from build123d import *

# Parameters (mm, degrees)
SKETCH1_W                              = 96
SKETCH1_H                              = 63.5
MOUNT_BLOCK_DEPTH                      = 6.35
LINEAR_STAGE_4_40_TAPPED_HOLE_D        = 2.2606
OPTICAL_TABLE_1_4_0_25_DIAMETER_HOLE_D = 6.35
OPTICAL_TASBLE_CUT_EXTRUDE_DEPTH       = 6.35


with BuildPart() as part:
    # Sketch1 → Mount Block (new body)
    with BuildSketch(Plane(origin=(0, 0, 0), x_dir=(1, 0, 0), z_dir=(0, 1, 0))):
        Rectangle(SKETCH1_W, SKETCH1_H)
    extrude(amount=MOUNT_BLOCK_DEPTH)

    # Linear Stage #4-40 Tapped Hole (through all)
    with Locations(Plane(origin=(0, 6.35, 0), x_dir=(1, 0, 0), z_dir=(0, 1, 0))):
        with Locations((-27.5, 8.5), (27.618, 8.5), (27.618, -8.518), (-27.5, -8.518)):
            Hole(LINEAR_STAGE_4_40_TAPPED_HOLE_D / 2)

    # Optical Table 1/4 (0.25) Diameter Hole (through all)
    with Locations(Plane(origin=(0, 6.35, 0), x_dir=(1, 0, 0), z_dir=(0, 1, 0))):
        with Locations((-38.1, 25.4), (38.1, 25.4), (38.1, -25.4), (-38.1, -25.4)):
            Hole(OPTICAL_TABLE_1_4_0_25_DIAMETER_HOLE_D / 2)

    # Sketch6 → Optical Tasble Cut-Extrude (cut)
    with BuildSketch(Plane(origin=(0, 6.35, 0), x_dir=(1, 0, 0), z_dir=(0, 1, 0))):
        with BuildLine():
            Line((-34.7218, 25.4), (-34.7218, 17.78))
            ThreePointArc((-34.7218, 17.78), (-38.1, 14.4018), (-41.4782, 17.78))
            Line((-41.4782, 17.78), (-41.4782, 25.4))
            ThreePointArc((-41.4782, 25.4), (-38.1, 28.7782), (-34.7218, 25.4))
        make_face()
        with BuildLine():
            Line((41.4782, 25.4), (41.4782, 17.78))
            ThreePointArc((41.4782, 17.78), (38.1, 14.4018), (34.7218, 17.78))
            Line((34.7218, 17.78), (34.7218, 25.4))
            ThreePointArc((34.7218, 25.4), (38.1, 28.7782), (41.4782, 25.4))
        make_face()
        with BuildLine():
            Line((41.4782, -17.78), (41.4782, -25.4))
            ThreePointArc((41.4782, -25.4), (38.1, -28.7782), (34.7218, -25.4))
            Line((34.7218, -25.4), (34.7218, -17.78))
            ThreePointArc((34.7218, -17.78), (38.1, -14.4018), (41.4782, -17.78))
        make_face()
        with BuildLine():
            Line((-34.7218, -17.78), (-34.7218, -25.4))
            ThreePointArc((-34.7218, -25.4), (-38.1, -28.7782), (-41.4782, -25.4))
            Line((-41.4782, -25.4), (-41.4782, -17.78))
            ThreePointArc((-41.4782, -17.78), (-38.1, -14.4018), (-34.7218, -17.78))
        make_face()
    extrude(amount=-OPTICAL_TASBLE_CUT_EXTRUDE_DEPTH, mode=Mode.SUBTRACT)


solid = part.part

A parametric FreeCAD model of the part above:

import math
import FreeCAD as App
import Part
import Sketcher
from FreeCAD import Vector
Q = App.Units.Quantity


def add_polygon(sketch, points):
    """Adds a closed chain of lines whose ends are joined by coincident constraints."""
    first, n = sketch.GeometryCount, len(points)
    for a, b in zip(points, points[1:] + points[:1]):
        sketch.addGeometry(Part.LineSegment(App.Vector(*a, 0), App.Vector(*b, 0)), False)
    for i in range(n):
        sketch.addConstraint(Sketcher.Constraint("Coincident", first + i, 2, first + (i + 1) % n, 1))

doc = App.newDocument("Part")
body = doc.addObject("PartDesign::Body", "Body")

sketch1 = doc.addObject("Sketcher::SketchObject", "Sketch")
body.addObject(sketch1)
sketch1.AttachmentSupport = (doc.XZ_Plane, [""])
sketch1.MapMode = "FlatFace"
add_polygon(sketch1, [(-48, -31.75), (-48, 31.75), (48, 31.75), (48, -31.75)])
sketch1.addConstraint([
    Sketcher.Constraint("Vertical", 0),
    Sketcher.Constraint("Horizontal", 1),
    Sketcher.Constraint("Vertical", 2),
    Sketcher.Constraint("Horizontal", 3),
    Sketcher.Constraint("Symmetric", 0, 2, 2, 2, -1, 1),
    Sketcher.Constraint("DistanceY", 0, 1, 0, 2, Q("2.5 in")),
    Sketcher.Constraint("DistanceX", 1, 1, 1, 2, Q("96 mm")),
])
pad1 = doc.addObject("PartDesign::Pad", "Pad")
body.addObject(pad1)
pad1.Profile = sketch1
pad1.Length = Q("0.25 in")
pad1.Reversed = True

sketch2 = doc.addObject("Sketcher::SketchObject", "Sketch001")
body.addObject(sketch2)
sketch2.AttachmentSupport = (doc.XZ_Plane, [""])
sketch2.MapMode = "FlatFace"
sketch2.AttachmentOffset = App.Placement(Vector(0, 0, -0.25 * 25.4), App.Rotation())
sketch2.addGeometry([
    Part.Circle(Vector(-27.5, -8.5, 0), Vector(0, 0, 1), 1.1303),
    Part.Circle(Vector(27.618, -8.5, 0), Vector(0, 0, 1), 1.1303),
    Part.Circle(Vector(27.618, 8.518, 0), Vector(0, 0, 1), 1.1303),
    Part.Circle(Vector(-27.5, 8.518, 0), Vector(0, 0, 1), 1.1303),
], False)
sketch2.addConstraint([
    Sketcher.Constraint("Equal", 0, 1),
    Sketcher.Constraint("Equal", 1, 2),
    Sketcher.Constraint("Equal", 2, 3),
    Sketcher.Constraint("Horizontal", 0, 3, 1, 3),
    Sketcher.Constraint("Horizontal", 2, 3, 3, 3),
    Sketcher.Constraint("Vertical", 1, 3, 2, 3),
    Sketcher.Constraint("Vertical", 0, 3, 3, 3),
    Sketcher.Constraint("Diameter", 0, Q("0.089 in")),
    Sketcher.Constraint("DistanceX", 0, 3, 1, 3, Q("2.17 in")),
    Sketcher.Constraint("DistanceY", 1, 3, 2, 3, Q("0.67 in")),
    Sketcher.Constraint("DistanceX", 0, 3, -1, 1, Q("27.5 mm")),
    Sketcher.Constraint("DistanceY", 0, 3, -1, 1, Q("8.5 mm")),
])
doc.recompute()
hole = doc.addObject("PartDesign::Hole", "Hole")
body.addObject(hole)
hole.Profile = sketch2
hole.ThreadType = "None"
hole.Diameter = Q("0.089 in")
hole.DepthType = "ThroughAll"
hole.Reversed = True

sketch3 = doc.addObject("Sketcher::SketchObject", "Sketch002")
body.addObject(sketch3)
sketch3.AttachmentSupport = (doc.XZ_Plane, [""])
sketch3.MapMode = "FlatFace"
sketch3.AttachmentOffset = App.Placement(Vector(0, 0, -0.25 * 25.4), App.Rotation())
sketch3.addGeometry([
    Part.Circle(Vector(-38.1, -25.4, 0), Vector(0, 0, 1), 3.175),
    Part.Circle(Vector(38.1, -25.4, 0), Vector(0, 0, 1), 3.175),
    Part.Circle(Vector(38.1, 25.4, 0), Vector(0, 0, 1), 3.175),
    Part.Circle(Vector(-38.1, 25.4, 0), Vector(0, 0, 1), 3.175),
], False)
sketch3.addConstraint([
    Sketcher.Constraint("Equal", 0, 1),
    Sketcher.Constraint("Equal", 1, 2),
    Sketcher.Constraint("Equal", 2, 3),
    Sketcher.Constraint("Symmetric", 0, 3, 2, 3, -1, 1),
    Sketcher.Constraint("Symmetric", 1, 3, 3, 3, -1, 1),
    Sketcher.Constraint("Symmetric", 0, 3, 1, 3, -2),
    Sketcher.Constraint("Diameter", 0, Q("0.25 in")),
    Sketcher.Constraint("DistanceY", 0, 3, -1, 1, Q("1 in")),
    Sketcher.Constraint("DistanceX", 0, 3, 1, 3, Q("3 in")),
])
doc.recompute()
hole2 = doc.addObject("PartDesign::Hole", "Hole001")
body.addObject(hole2)
hole2.Profile = sketch3
hole2.ThreadType = "None"
hole2.Diameter = Q("0.25 in")
hole2.DepthType = "ThroughAll"
hole2.Reversed = True

sketch4 = doc.addObject("Sketcher::SketchObject", "Sketch003")
body.addObject(sketch4)
sketch4.AttachmentSupport = (doc.XZ_Plane, [""])
sketch4.MapMode = "FlatFace"
sketch4.AttachmentOffset = App.Placement(Vector(0, 0, -0.25 * 25.4), App.Rotation())
sketch4.addGeometry([
    Part.LineSegment(Vector(-34.7218, -17.78, 0), Vector(-34.7218, -25.4, 0)),
    Part.ArcOfCircle(Part.Circle(Vector(-38.1, -25.4, 0), Vector(0, 0, 1), 3.3782), math.radians(180), math.radians(360)),
    Part.LineSegment(Vector(-41.4782, -25.4, 0), Vector(-41.4782, -17.78, 0)),
    Part.ArcOfCircle(Part.Circle(Vector(-38.1, -17.78, 0), Vector(0, 0, 1), 3.3782), math.radians(0), math.radians(180)),
    Part.LineSegment(Vector(41.4782, -17.78, 0), Vector(41.4782, -25.4, 0)),
    Part.ArcOfCircle(Part.Circle(Vector(38.1, -25.4, 0), Vector(0, 0, 1), 3.3782), math.radians(180), math.radians(360)),
    Part.LineSegment(Vector(34.7218, -25.4, 0), Vector(34.7218, -17.78, 0)),
    Part.ArcOfCircle(Part.Circle(Vector(38.1, -17.78, 0), Vector(0, 0, 1), 3.3782), math.radians(0), math.radians(180)),
    Part.LineSegment(Vector(41.4782, 25.4, 0), Vector(41.4782, 17.78, 0)),
    Part.ArcOfCircle(Part.Circle(Vector(38.1, 17.78, 0), Vector(0, 0, 1), 3.3782), math.radians(180), math.radians(360)),
    Part.LineSegment(Vector(34.7218, 17.78, 0), Vector(34.7218, 25.4, 0)),
    Part.ArcOfCircle(Part.Circle(Vector(38.1, 25.4, 0), Vector(0, 0, 1), 3.3782), math.radians(0), math.radians(180)),
    Part.LineSegment(Vector(-34.7218, 25.4, 0), Vector(-34.7218, 17.78, 0)),
    Part.ArcOfCircle(Part.Circle(Vector(-38.1, 17.78, 0), Vector(0, 0, 1), 3.3782), math.radians(180), math.radians(360)),
    Part.LineSegment(Vector(-41.4782, 17.78, 0), Vector(-41.4782, 25.4, 0)),
    Part.ArcOfCircle(Part.Circle(Vector(-38.1, 25.4, 0), Vector(0, 0, 1), 3.3782), math.radians(0), math.radians(180)),
], False)
sketch4.addConstraint([
    Sketcher.Constraint("Tangent", 0, 2, 1, 2),
    Sketcher.Constraint("Tangent", 1, 1, 2, 1),
    Sketcher.Constraint("Tangent", 2, 2, 3, 2),
    Sketcher.Constraint("Tangent", 3, 1, 0, 1),
    Sketcher.Constraint("Tangent", 4, 2, 5, 2),
    Sketcher.Constraint("Tangent", 5, 1, 6, 1),
    Sketcher.Constraint("Tangent", 6, 2, 7, 2),
    Sketcher.Constraint("Tangent", 7, 1, 4, 1),
    Sketcher.Constraint("Tangent", 8, 2, 9, 2),
    Sketcher.Constraint("Tangent", 9, 1, 10, 1),
    Sketcher.Constraint("Tangent", 10, 2, 11, 2),
    Sketcher.Constraint("Tangent", 11, 1, 8, 1),
    Sketcher.Constraint("Tangent", 12, 2, 13, 2),
    Sketcher.Constraint("Tangent", 13, 1, 14, 1),
    Sketcher.Constraint("Tangent", 14, 2, 15, 2),
    Sketcher.Constraint("Tangent", 15, 1, 12, 1),
    Sketcher.Constraint("Vertical", 0),
    Sketcher.Constraint("Vertical", 2),
    Sketcher.Constraint("Vertical", 4),
    Sketcher.Constraint("Vertical", 6),
    Sketcher.Constraint("Vertical", 8),
    Sketcher.Constraint("Vertical", 10),
    Sketcher.Constraint("Vertical", 12),
    Sketcher.Constraint("Vertical", 14),
    Sketcher.Constraint("Equal", 3, 5),
    Sketcher.Constraint("Equal", 7, 9),
    Sketcher.Constraint("Equal", 11, 13),
    Sketcher.Constraint("Symmetric", 3, 3, 9, 3, -1, 1),
    Sketcher.Constraint("Symmetric", 7, 3, 13, 3, -1, 1),
    Sketcher.Constraint("Symmetric", 1, 3, 5, 3, -2),
    Sketcher.Constraint("Horizontal", 3, 3, 7, 3),
    Sketcher.Constraint("Horizontal", 11, 3, 15, 3),
    Sketcher.Constraint("Equal", 6, 8),
    Sketcher.Constraint("DistanceY", 0, 2, 0, 1, Q("0.3 in")),
    Sketcher.Constraint("DistanceY", 1, 3, -1, 1, Q("1 in")),
    Sketcher.Constraint("Radius", 1, Q("0.133 in")),
    Sketcher.Constraint("DistanceX", 1, 3, 5, 3, Q("3 in")),
])
pocket1 = doc.addObject("PartDesign::Pocket", "Pocket")
body.addObject(pocket1)
pocket1.Profile = sketch4
pocket1.Length = Q("0.25 in")
pocket1.Reversed = True

doc.recompute()
